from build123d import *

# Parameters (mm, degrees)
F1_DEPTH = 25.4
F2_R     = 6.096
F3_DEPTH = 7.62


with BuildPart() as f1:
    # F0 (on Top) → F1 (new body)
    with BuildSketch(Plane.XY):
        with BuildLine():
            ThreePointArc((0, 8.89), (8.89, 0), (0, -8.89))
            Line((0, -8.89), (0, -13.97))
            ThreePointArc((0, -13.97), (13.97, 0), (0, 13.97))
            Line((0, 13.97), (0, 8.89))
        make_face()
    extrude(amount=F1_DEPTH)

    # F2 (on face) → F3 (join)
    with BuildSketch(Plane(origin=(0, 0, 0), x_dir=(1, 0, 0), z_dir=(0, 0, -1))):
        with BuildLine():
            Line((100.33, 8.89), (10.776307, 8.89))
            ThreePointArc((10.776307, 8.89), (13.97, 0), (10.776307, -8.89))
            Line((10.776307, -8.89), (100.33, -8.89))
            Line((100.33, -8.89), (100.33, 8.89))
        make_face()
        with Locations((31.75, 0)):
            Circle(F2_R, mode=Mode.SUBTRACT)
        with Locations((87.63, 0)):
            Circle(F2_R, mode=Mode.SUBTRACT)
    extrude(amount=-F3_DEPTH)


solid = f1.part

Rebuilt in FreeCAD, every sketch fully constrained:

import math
import FreeCAD as App
import Part
import Sketcher
from FreeCAD import Vector
Q = App.Units.Quantity

doc = App.newDocument("Part")
body = doc.addObject("PartDesign::Body", "Body")

# Sketch on XY plane
sketch1 = body.newObject("Sketcher::SketchObject", "Sketch")
sketch1.AttachmentSupport = (doc.getObject("XY_Plane"), [""])
sketch1.MapMode = "FlatFace"
sketch1.addGeometry([
    Part.ArcOfCircle(Part.Circle(Vector(0, 0, 0), Vector(0, 0, 1), 9), math.radians(-90), math.radians(90)),
    Part.LineSegment(Vector(0, -9, 0), Vector(0, -14, 0)),
    Part.ArcOfCircle(Part.Circle(Vector(0, 0, 0), Vector(0, 0, 1), 14), math.radians(-90), math.radians(90)),
    Part.LineSegment(Vector(0, 14, 0), Vector(0, 9, 0)),
], False)
sketch1.addConstraint([
    Sketcher.Constraint("Coincident", 0, 1, 1, 1),
    Sketcher.Constraint("Coincident", 1, 2, 2, 1),
    Sketcher.Constraint("Coincident", 2, 2, 3, 1),
    Sketcher.Constraint("Coincident", 3, 2, 0, 2),
    Sketcher.Constraint("Vertical", 1),
    Sketcher.Constraint("Vertical", 3),
    Sketcher.Constraint("Coincident", 0, 3, -1, 1),
    Sketcher.Constraint("Coincident", 2, 3, -1, 1),
    Sketcher.Constraint("PointOnObject", 0, 1, -2),
    Sketcher.Constraint("PointOnObject", 2, 2, -2),
    Sketcher.Constraint("Radius", 0, Q("0.35 in")),
    Sketcher.Constraint("Radius", 2, Q("0.55 in")),
])
pad1 = body.newObject("PartDesign::Pad", "Pad")
pad1.Profile = sketch1
pad1.Length = Q("1 in")

# Sketch on XY plane
sketch2 = body.newObject("Sketcher::SketchObject", "Sketch001")
sketch2.AttachmentSupport = (doc.getObject("XY_Plane"), [""])
sketch2.MapMode = "FlatFace"
sketch2.addGeometry([
    Part.LineSegment(Vector(100, -9, 0), Vector(11, -9, 0)),  # 0
    Part.ArcOfCircle(Part.Circle(Vector(0, 0, 0), Vector(0, 0, 1), 14), math.radians(-40), math.radians(40)),  # 1
    Part.LineSegment(Vector(11, 9, 0), Vector(100, 9, 0)),  # 2
    Part.LineSegment(Vector(100, 9, 0), Vector(100, -9, 0)),  # 3
    Part.Circle(Vector(32, 0, 0), Vector(0, 0, 1), 6),  # 4
    Part.Circle(Vector(88, 0, 0), Vector(0, 0, 1), 6),  # 5
], False)
sketch2.addConstraint([
    Sketcher.Constraint("Coincident", 0, 2, 1, 1),
    Sketcher.Constraint("Coincident", 1, 2, 2, 1),
    Sketcher.Constraint("Coincident", 2, 2, 3, 1),
    Sketcher.Constraint("Coincident", 3, 2, 0, 1),
    Sketcher.Constraint("Horizontal", 0),
    Sketcher.Constraint("Horizontal", 2),
    Sketcher.Constraint("Vertical", 3),
    Sketcher.Constraint("Coincident", 1, 3, -1, 1),
    Sketcher.Constraint("Equal", 4, 5),
    Sketcher.Constraint("PointOnObject", 4, 3, -1),
    Sketcher.Constraint("PointOnObject", 5, 3, -1),
    Sketcher.Constraint("Vertical", 0, 2, 1, 2),
    Sketcher.Constraint("Diameter", 4, Q("0.48 in")),
    Sketcher.Constraint("Radius", 1, Q("0.55 in")),
    Sketcher.Constraint("DistanceY", 3, 2, 3, 1, Q("0.7 in")),
    Sketcher.Constraint("DistanceX", 4, 3, 5, 3, Q("2.2 in")),
    Sketcher.Constraint("DistanceX", 5, 3, 2, 2, Q("0.5 in")),
    Sketcher.Constraint("DistanceX", -1, 1, 4, 3, Q("1.25 in")),
])
pad2 = body.newObject("PartDesign::Pad", "Pad001")
pad2.Profile = sketch2
pad2.Length = Q("0.3 in")

doc.recompute()
